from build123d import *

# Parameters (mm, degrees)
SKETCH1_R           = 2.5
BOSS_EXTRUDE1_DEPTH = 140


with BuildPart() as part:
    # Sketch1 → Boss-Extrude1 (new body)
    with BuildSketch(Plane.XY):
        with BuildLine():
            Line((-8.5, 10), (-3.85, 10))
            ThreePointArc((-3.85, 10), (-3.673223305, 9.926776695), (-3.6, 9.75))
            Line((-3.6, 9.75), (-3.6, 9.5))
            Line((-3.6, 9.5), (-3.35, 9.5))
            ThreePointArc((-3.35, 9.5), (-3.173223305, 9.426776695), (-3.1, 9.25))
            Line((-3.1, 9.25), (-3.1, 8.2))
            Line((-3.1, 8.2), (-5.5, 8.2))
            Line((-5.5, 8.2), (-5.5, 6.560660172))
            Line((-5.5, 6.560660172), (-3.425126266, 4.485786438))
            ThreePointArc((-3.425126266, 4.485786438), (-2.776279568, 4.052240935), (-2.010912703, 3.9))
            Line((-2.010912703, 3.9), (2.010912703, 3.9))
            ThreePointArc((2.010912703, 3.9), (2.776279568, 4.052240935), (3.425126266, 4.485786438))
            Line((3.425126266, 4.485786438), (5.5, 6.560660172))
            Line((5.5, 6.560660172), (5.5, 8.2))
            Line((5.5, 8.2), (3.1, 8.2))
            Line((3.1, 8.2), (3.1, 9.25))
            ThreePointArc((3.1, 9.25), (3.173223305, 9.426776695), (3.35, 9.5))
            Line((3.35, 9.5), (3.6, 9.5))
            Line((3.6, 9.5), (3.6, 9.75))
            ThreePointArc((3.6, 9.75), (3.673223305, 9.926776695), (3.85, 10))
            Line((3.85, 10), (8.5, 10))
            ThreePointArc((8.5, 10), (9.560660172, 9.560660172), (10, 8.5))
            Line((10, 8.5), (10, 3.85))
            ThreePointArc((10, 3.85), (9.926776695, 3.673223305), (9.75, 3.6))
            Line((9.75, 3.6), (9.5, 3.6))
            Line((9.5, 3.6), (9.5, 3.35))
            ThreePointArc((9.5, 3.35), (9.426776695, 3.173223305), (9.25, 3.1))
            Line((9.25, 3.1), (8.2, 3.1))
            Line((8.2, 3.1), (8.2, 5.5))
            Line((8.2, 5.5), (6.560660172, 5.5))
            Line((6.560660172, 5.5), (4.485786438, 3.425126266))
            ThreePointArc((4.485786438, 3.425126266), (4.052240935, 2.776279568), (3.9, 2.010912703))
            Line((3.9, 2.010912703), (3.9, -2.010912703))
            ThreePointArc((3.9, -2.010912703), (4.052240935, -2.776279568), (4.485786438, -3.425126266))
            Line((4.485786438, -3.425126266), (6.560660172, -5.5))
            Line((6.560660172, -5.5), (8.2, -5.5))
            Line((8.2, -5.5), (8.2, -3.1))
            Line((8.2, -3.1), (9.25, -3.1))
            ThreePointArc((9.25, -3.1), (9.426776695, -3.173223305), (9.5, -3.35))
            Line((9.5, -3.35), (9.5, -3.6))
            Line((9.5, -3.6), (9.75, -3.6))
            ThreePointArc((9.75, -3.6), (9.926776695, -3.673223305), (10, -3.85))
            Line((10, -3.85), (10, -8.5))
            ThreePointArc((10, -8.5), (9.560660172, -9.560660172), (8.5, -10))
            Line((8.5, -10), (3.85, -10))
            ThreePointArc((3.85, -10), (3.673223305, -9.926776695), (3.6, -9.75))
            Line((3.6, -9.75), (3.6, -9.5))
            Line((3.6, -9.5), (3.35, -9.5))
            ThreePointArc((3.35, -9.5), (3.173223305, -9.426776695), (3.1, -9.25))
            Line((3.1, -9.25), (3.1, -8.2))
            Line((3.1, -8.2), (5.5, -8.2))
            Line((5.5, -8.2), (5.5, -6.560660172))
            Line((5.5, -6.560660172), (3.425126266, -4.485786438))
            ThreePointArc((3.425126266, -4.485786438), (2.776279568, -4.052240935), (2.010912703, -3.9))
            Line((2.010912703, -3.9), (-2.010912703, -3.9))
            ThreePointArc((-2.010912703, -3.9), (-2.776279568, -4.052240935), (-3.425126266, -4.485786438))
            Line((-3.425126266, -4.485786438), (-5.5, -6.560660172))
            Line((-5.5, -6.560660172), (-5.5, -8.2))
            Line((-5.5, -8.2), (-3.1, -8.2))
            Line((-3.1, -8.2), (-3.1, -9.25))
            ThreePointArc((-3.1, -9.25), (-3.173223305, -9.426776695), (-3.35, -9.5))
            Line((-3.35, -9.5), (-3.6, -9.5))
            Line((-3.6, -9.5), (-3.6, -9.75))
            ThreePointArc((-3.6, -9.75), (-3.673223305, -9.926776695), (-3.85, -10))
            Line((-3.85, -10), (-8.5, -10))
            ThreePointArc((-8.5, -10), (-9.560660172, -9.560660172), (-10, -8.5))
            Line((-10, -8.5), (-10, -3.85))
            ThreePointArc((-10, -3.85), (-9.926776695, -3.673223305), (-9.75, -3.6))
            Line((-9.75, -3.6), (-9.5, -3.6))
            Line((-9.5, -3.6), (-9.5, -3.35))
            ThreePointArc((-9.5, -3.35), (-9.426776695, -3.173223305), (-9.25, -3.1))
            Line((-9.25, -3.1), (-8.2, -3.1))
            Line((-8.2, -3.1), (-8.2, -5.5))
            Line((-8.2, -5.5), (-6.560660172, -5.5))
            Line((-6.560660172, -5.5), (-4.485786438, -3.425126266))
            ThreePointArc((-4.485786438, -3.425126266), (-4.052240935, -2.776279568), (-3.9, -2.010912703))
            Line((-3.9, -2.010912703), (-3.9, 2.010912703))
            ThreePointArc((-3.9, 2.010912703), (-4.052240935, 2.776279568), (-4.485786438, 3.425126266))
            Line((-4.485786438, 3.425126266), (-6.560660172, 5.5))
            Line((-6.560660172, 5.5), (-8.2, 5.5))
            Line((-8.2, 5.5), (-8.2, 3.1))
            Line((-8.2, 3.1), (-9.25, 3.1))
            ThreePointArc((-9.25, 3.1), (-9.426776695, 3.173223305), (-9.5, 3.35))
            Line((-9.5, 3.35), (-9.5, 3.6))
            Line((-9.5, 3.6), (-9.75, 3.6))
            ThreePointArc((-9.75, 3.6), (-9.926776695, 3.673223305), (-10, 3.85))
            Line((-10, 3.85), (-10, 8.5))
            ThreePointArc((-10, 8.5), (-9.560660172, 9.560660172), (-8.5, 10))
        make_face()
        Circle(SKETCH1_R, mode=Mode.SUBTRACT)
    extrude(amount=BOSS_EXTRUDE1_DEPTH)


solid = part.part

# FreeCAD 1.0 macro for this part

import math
import FreeCAD as App
import Part
import Sketcher
from FreeCAD import Vector
Q = App.Units.Quantity

doc = App.newDocument("Part")
body = doc.addObject("PartDesign::Body", "Body")

sketch1 = body.newObject("Sketcher::SketchObject", "Sketch")
sketch1.AttachmentSupport = (doc.getObject("XY_Plane"), [""])
sketch1.MapMode = "FlatFace"
sketch1.addGeometry([
    Part.LineSegment(Vector(-3.85, 10, 0), Vector(-8.5, 10, 0)),
    Part.ArcOfCircle(Part.Circle(Vector(-8.5, 8.5, 0), Vector(0, 0, 1), 1.5), math.radians(90), math.radians(180)),
    Part.LineSegment(Vector(-10, 8.5, 0), Vector(-10, 3.85, 0)),
    Part.ArcOfCircle(Part.Circle(Vector(-9.75, 3.85, 0), Vector(0, 0, 1), 0.25), math.radians(-180), math.radians(-90)),
    Part.LineSegment(Vector(-9.75, 3.6, 0), Vector(-9.5, 3.6, 0)),
    Part.LineSegment(Vector(-9.5, 3.6, 0), Vector(-9.5, 3.35, 0)),
    Part.ArcOfCircle(Part.Circle(Vector(-9.25, 3.35, 0), Vector(0, 0, 1), 0.25), math.radians(-180), math.radians(-90)),
    Part.LineSegment(Vector(-9.25, 3.1, 0), Vector(-8.2, 3.1, 0)),
    Part.LineSegment(Vector(-8.2, 3.1, 0), Vector(-8.2, 5.5, 0)),
    Part.LineSegment(Vector(-8.2, 5.5, 0), Vector(-6.56, 5.5, 0)),
    Part.LineSegment(Vector(-6.56, 5.5, 0), Vector(-4.49, 3.43, 0)),
    Part.ArcOfCircle(Part.Circle(Vector(-5.9, 2.01, 0), Vector(0, 0, 1), 2), math.radians(0), math.radians(45)),
    Part.LineSegment(Vector(-3.9, 2.01, 0), Vector(-3.9, -2.01, 0)),
    Part.ArcOfCircle(Part.Circle(Vector(-5.9, -2.01, 0), Vector(0, 0, 1), 2), math.radians(-45), math.radians(0)),
    Part.LineSegment(Vector(-4.49, -3.43, 0), Vector(-6.56, -5.5, 0)),
    Part.LineSegment(Vector(-6.56, -5.5, 0), Vector(-8.2, -5.5, 0)),
    Part.LineSegment(Vector(-8.2, -5.5, 0), Vector(-8.2, -3.1, 0)),
    Part.LineSegment(Vector(-8.2, -3.1, 0), Vector(-9.25, -3.1, 0)),
    Part.ArcOfCircle(Part.Circle(Vector(-9.25, -3.35, 0), Vector(0, 0, 1), 0.25), math.radians(90), math.radians(180)),
    Part.LineSegment(Vector(-9.5, -3.35, 0), Vector(-9.5, -3.6, 0)),
    Part.LineSegment(Vector(-9.5, -3.6, 0), Vector(-9.75, -3.6, 0)),
    Part.ArcOfCircle(Part.Circle(Vector(-9.75, -3.85, 0), Vector(0, 0, 1), 0.25), math.radians(90), math.radians(180)),
    Part.LineSegment(Vector(-10, -3.85, 0), Vector(-10, -8.5, 0)),
    Part.ArcOfCircle(Part.Circle(Vector(-8.5, -8.5, 0), Vector(0, 0, 1), 1.5), math.radians(180), math.radians(270)),
    Part.LineSegment(Vector(-8.5, -10, 0), Vector(-3.85, -10, 0)),
    Part.ArcOfCircle(Part.Circle(Vector(-3.85, -9.75, 0), Vector(0, 0, 1), 0.25), math.radians(-90), math.radians(0)),
    Part.LineSegment(Vector(-3.6, -9.75, 0), Vector(-3.6, -9.5, 0)),
    Part.LineSegment(Vector(-3.6, -9.5, 0), Vector(-3.35, -9.5, 0)),
    Part.ArcOfCircle(Part.Circle(Vector(-3.35, -9.25, 0), Vector(0, 0, 1), 0.25), math.radians(-90), math.radians(0)),
    Part.LineSegment(Vector(-3.1, -9.25, 0), Vector(-3.1, -8.2, 0)),
    Part.LineSegment(Vector(-3.1, -8.2, 0), Vector(-5.5, -8.2, 0)),
    Part.LineSegment(Vector(-5.5, -8.2, 0), Vector(-5.5, -6.56, 0)),
    Part.LineSegment(Vector(-5.5, -6.56, 0), Vector(-3.43, -4.49, 0)),
    Part.ArcOfCircle(Part.Circle(Vector(-2.01, -5.9, 0), Vector(0, 0, 1), 2), math.radians(90), math.radians(135)),
    Part.LineSegment(Vector(-2.01, -3.9, 0), Vector(2.01, -3.9, 0)),
    Part.ArcOfCircle(Part.Circle(Vector(2.01, -5.9, 0), Vector(0, 0, 1), 2), math.radians(45), math.radians(90)),
    Part.LineSegment(Vector(3.43, -4.49, 0), Vector(5.5, -6.56, 0)),
    Part.LineSegment(Vector(5.5, -6.56, 0), Vector(5.5, -8.2, 0)),
    Part.LineSegment(Vector(5.5, -8.2, 0), Vector(3.1, -8.2, 0)),
    Part.LineSegment(Vector(3.1, -8.2, 0), Vector(3.1, -9.25, 0)),
    Part.ArcOfCircle(Part.Circle(Vector(3.35, -9.25, 0), Vector(0, 0, 1), 0.25), math.radians(-180), math.radians(-90)),
    Part.LineSegment(Vector(3.35, -9.5, 0), Vector(3.6, -9.5, 0)),
    Part.LineSegment(Vector(3.6, -9.5, 0), Vector(3.6, -9.75, 0)),
    Part.ArcOfCircle(Part.Circle(Vector(3.85, -9.75, 0), Vector(0, 0, 1), 0.25), math.radians(-180), math.radians(-90)),
    Part.LineSegment(Vector(3.85, -10, 0), Vector(8.5, -10, 0)),
    Part.ArcOfCircle(Part.Circle(Vector(8.5, -8.5, 0), Vector(0, 0, 1), 1.5), math.radians(-90), math.radians(0)),
    Part.LineSegment(Vector(10, -8.5, 0), Vector(10, -3.85, 0)),
    Part.ArcOfCircle(Part.Circle(Vector(9.75, -3.85, 0), Vector(0, 0, 1), 0.25), math.radians(0), math.radians(90)),
    Part.LineSegment(Vector(9.75, -3.6, 0), Vector(9.5, -3.6, 0)),
    Part.LineSegment(Vector(9.5, -3.6, 0), Vector(9.5, -3.35, 0)),
    Part.ArcOfCircle(Part.Circle(Vector(9.25, -3.35, 0), Vector(0, 0, 1), 0.25), math.radians(0), math.radians(90)),
    Part.LineSegment(Vector(9.25, -3.1, 0), Vector(8.2, -3.1, 0)),
    Part.LineSegment(Vector(8.2, -3.1, 0), Vector(8.2, -5.5, 0)),
    Part.LineSegment(Vector(8.2, -5.5, 0), Vector(6.56, -5.5, 0)),
    Part.LineSegment(Vector(6.56, -5.5, 0), Vector(4.49, -3.43, 0)),
    Part.ArcOfCircle(Part.Circle(Vector(5.9, -2.01, 0), Vector(0, 0, 1), 2), math.radians(180), math.radians(225)),
    Part.LineSegment(Vector(3.9, -2.01, 0), Vector(3.9, 2.01, 0)),
    Part.ArcOfCircle(Part.Circle(Vector(5.9, 2.01, 0), Vector(0, 0, 1), 2), math.radians(135), math.radians(180)),
    Part.LineSegment(Vector(4.49, 3.43, 0), Vector(6.56, 5.5, 0)),
    Part.LineSegment(Vector(6.56, 5.5, 0), Vector(8.2, 5.5, 0)),
    Part.LineSegment(Vector(8.2, 5.5, 0), Vector(8.2, 3.1, 0)),
    Part.LineSegment(Vector(8.2, 3.1, 0), Vector(9.25, 3.1, 0)),
    Part.ArcOfCircle(Part.Circle(Vector(9.25, 3.35, 0), Vector(0, 0, 1), 0.25), math.radians(-90), math.radians(0)),
    Part.LineSegment(Vector(9.5, 3.35, 0), Vector(9.5, 3.6, 0)),
    Part.LineSegment(Vector(9.5, 3.6, 0), Vector(9.75, 3.6, 0)),
    Part.ArcOfCircle(Part.Circle(Vector(9.75, 3.85, 0), Vector(0, 0, 1), 0.25), math.radians(-90), math.radians(0)),
    Part.LineSegment(Vector(10, 3.85, 0), Vector(10, 8.5, 0)),
    Part.ArcOfCircle(Part.Circle(Vector(8.5, 8.5, 0), Vector(0, 0, 1), 1.5), math.radians(0), math.radians(90)),
    Part.LineSegment(Vector(8.5, 10, 0), Vector(3.85, 10, 0)),
    Part.ArcOfCircle(Part.Circle(Vector(3.85, 9.75, 0), Vector(0, 0, 1), 0.25), math.radians(90), math.radians(180)),
    Part.LineSegment(Vector(3.6, 9.75, 0), Vector(3.6, 9.5, 0)),
    Part.LineSegment(Vector(3.6, 9.5, 0), Vector(3.35, 9.5, 0)),
    Part.ArcOfCircle(Part.Circle(Vector(3.35, 9.25, 0), Vector(0, 0, 1), 0.25), math.radians(90), math.radians(180)),
    Part.LineSegment(Vector(3.1, 9.25, 0), Vector(3.1, 8.2, 0)),
    Part.LineSegment(Vector(3.1, 8.2, 0), Vector(5.5, 8.2, 0)),
    Part.LineSegment(Vector(5.5, 8.2, 0), Vector(5.5, 6.56, 0)),
    Part.LineSegment(Vector(5.5, 6.56, 0), Vector(3.43, 4.49, 0)),
    Part.ArcOfCircle(Part.Circle(Vector(2.01, 5.9, 0), Vector(0, 0, 1), 2), math.radians(-90), math.radians(-45)),
    Part.LineSegment(Vector(2.01, 3.9, 0), Vector(-2.01, 3.9, 0)),
    Part.ArcOfCircle(Part.Circle(Vector(-2.01, 5.9, 0), Vector(0, 0, 1), 2), math.radians(-135), math.radians(-90)),
    Part.LineSegment(Vector(-3.43, 4.49, 0), Vector(-5.5, 6.56, 0)),
    Part.LineSegment(Vector(-5.5, 6.56, 0), Vector(-5.5, 8.2, 0)),
    Part.LineSegment(Vector(-5.5, 8.2, 0), Vector(-3.1, 8.2, 0)),
    Part.LineSegment(Vector(-3.1, 8.2, 0), Vector(-3.1, 9.25, 0)),
    Part.ArcOfCircle(Part.Circle(Vector(-3.35, 9.25, 0), Vector(0, 0, 1), 0.25), math.radians(0), math.radians(90)),
    Part.LineSegment(Vector(-3.35, 9.5, 0), Vector(-3.6, 9.5, 0)),
    Part.LineSegment(Vector(-3.6, 9.5, 0), Vector(-3.6, 9.75, 0)),
    Part.ArcOfCircle(Part.Circle(Vector(-3.85, 9.75, 0), Vector(0, 0, 1), 0.25), math.radians(0), math.radians(90)),
    Part.Circle(Vector(0, 0, 0), Vector(0, 0, 1), 2.5),
], False)
sketch1.addConstraint([
    Sketcher.Constraint("Tangent", 0, 2, 1, 1),
    Sketcher.Constraint("Tangent", 1, 2, 2, 1),
    Sketcher.Constraint("Tangent", 2, 2, 3, 1),
    Sketcher.Constraint("Tangent", 3, 2, 4, 1),
    Sketcher.Constraint("Coincident", 4, 2, 5, 1),
    Sketcher.Constraint("Tangent", 5, 2, 6, 1),
    Sketcher.Constraint("Tangent", 6, 2, 7, 1),
    Sketcher.Constraint("Coincident", 7, 2, 8, 1),
    Sketcher.Constraint("Coincident", 8, 2, 9, 1),
    Sketcher.Constraint("Coincident", 9, 2, 10, 1),
    Sketcher.Constraint("Tangent", 10, 2, 11, 2),
    Sketcher.Constraint("Tangent", 11, 1, 12, 1),
    Sketcher.Constraint("Tangent", 12, 2, 13, 2),
    Sketcher.Constraint("Tangent", 13, 1, 14, 1),
    Sketcher.Constraint("Coincident", 14, 2, 15, 1),
    Sketcher.Constraint("Coincident", 15, 2, 16, 1),
    Sketcher.Constraint("Coincident", 16, 2, 17, 1),
    Sketcher.Constraint("Tangent", 17, 2, 18, 1),
    Sketcher.Constraint("Tangent", 18, 2, 19, 1),
    Sketcher.Constraint("Coincident", 19, 2, 20, 1),
    Sketcher.Constraint("Tangent", 20, 2, 21, 1),
    Sketcher.Constraint("Tangent", 21, 2, 22, 1),
    Sketcher.Constraint("Tangent", 22, 2, 23, 1),
    Sketcher.Constraint("Tangent", 23, 2, 24, 1),
    Sketcher.Constraint("Tangent", 24, 2, 25, 1),
    Sketcher.Constraint("Tangent", 25, 2, 26, 1),
    Sketcher.Constraint("Coincident", 26, 2, 27, 1),
    Sketcher.Constraint("Tangent", 27, 2, 28, 1),
    Sketcher.Constraint("Tangent", 28, 2, 29, 1),
    Sketcher.Constraint("Coincident", 29, 2, 30, 1),
    Sketcher.Constraint("Coincident", 30, 2, 31, 1),
    Sketcher.Constraint("Coincident", 31, 2, 32, 1),
    Sketcher.Constraint("Tangent", 32, 2, 33, 2),
    Sketcher.Constraint("Tangent", 33, 1, 34, 1),
    Sketcher.Constraint("Tangent", 34, 2, 35, 2),
    Sketcher.Constraint("Tangent", 35, 1, 36, 1),
    Sketcher.Constraint("Coincident", 36, 2, 37, 1),
    Sketcher.Constraint("Coincident", 37, 2, 38, 1),
    Sketcher.Constraint("Coincident", 38, 2, 39, 1),
    Sketcher.Constraint("Tangent", 39, 2, 40, 1),
    Sketcher.Constraint("Tangent", 40, 2, 41, 1),
    Sketcher.Constraint("Coincident", 41, 2, 42, 1),
    Sketcher.Constraint("Tangent", 42, 2, 43, 1),
    Sketcher.Constraint("Tangent", 43, 2, 44, 1),
    Sketcher.Constraint("Tangent", 44, 2, 45, 1),
    Sketcher.Constraint("Tangent", 45, 2, 46, 1),
    Sketcher.Constraint("Tangent", 46, 2, 47, 1),
    Sketcher.Constraint("Tangent", 47, 2, 48, 1),
    Sketcher.Constraint("Coincident", 48, 2, 49, 1),
    Sketcher.Constraint("Tangent", 49, 2, 50, 1),
    Sketcher.Constraint("Tangent", 50, 2, 51, 1),
    Sketcher.Constraint("Coincident", 51, 2, 52, 1),
    Sketcher.Constraint("Coincident", 52, 2, 53, 1),
    Sketcher.Constraint("Coincident", 53, 2, 54, 1),
    Sketcher.Constraint("Tangent", 54, 2, 55, 2),
    Sketcher.Constraint("Tangent", 55, 1, 56, 1),
    Sketcher.Constraint("Tangent", 56, 2, 57, 2),
    Sketcher.Constraint("Tangent", 57, 1, 58, 1),
    Sketcher.Constraint("Coincident", 58, 2, 59, 1),
    Sketcher.Constraint("Coincident", 59, 2, 60, 1),
    Sketcher.Constraint("Coincident", 60, 2, 61, 1),
    Sketcher.Constraint("Tangent", 61, 2, 62, 1),
    Sketcher.Constraint("Tangent", 62, 2, 63, 1),
    Sketcher.Constraint("Coincident", 63, 2, 64, 1),
    Sketcher.Constraint("Tangent", 64, 2, 65, 1),
    Sketcher.Constraint("Tangent", 65, 2, 66, 1),
    Sketcher.Constraint("Tangent", 66, 2, 67, 1),
    Sketcher.Constraint("Tangent", 67, 2, 68, 1),
    Sketcher.Constraint("Tangent", 68, 2, 69, 1),
    Sketcher.Constraint("Tangent", 69, 2, 70, 1),
    Sketcher.Constraint("Coincident", 70, 2, 71, 1),
    Sketcher.Constraint("Tangent", 71, 2, 72, 1),
    Sketcher.Constraint("Tangent", 72, 2, 73, 1),
    Sketcher.Constraint("Coincident", 73, 2, 74, 1),
    Sketcher.Constraint("Coincident", 74, 2, 75, 1),
    Sketcher.Constraint("Coincident", 75, 2, 76, 1),
    Sketcher.Constraint("Tangent", 76, 2, 77, 2),
    Sketcher.Constraint("Tangent", 77, 1, 78, 1),
    Sketcher.Constraint("Tangent", 78, 2, 79, 2),
    Sketcher.Constraint("Tangent", 79, 1, 80, 1),
    Sketcher.Constraint("Coincident", 80, 2, 81, 1),
    Sketcher.Constraint("Coincident", 81, 2, 82, 1),
    Sketcher.Constraint("Coincident", 82, 2, 83, 1),
    Sketcher.Constraint("Tangent", 83, 2, 84, 1),
    Sketcher.Constraint("Tangent", 84, 2, 85, 1),
    Sketcher.Constraint("Coincident", 85, 2, 86, 1),
    Sketcher.Constraint("Tangent", 86, 2, 87, 1),
    Sketcher.Constraint("Tangent", 87, 2, 0, 1),
    Sketcher.Constraint("Horizontal", 0),
    Sketcher.Constraint("Vertical", 2),
    Sketcher.Constraint("Horizontal", 4),
    Sketcher.Constraint("Vertical", 5),
    Sketcher.Constraint("Horizontal", 7),
    Sketcher.Constraint("Vertical", 8),
    Sketcher.Constraint("Horizontal", 9),
    Sketcher.Constraint("Vertical", 12),
    Sketcher.Constraint("Horizontal", 15),
    Sketcher.Constraint("Vertical", 16),
    Sketcher.Constraint("Horizontal", 17),
    Sketcher.Constraint("Vertical", 19),
    Sketcher.Constraint("Horizontal", 20),
    Sketcher.Constraint("Vertical", 22),
    Sketcher.Constraint("Horizontal", 24),
    Sketcher.Constraint("Vertical", 26),
    Sketcher.Constraint("Horizontal", 27),
    Sketcher.Constraint("Vertical", 29),
    Sketcher.Constraint("Horizontal", 30),
    Sketcher.Constraint("Vertical", 31),
    Sketcher.Constraint("Horizontal", 34),
    Sketcher.Constraint("Vertical", 37),
    Sketcher.Constraint("Horizontal", 38),
    Sketcher.Constraint("Vertical", 39),
    Sketcher.Constraint("Horizontal", 41),
    Sketcher.Constraint("Vertical", 42),
    Sketcher.Constraint("Horizontal", 44),
    Sketcher.Constraint("Vertical", 46),
    Sketcher.Constraint("Horizontal", 48),
    Sketcher.Constraint("Vertical", 49),
    Sketcher.Constraint("Horizontal", 51),
    Sketcher.Constraint("Vertical", 52),
    Sketcher.Constraint("Horizontal", 53),
    Sketcher.Constraint("Vertical", 56),
    Sketcher.Constraint("Horizontal", 59),
    Sketcher.Constraint("Vertical", 60),
    Sketcher.Constraint("Horizontal", 61),
    Sketcher.Constraint("Vertical", 63),
    Sketcher.Constraint("Horizontal", 64),
    Sketcher.Constraint("Vertical", 66),
    Sketcher.Constraint("Horizontal", 68),
    Sketcher.Constraint("Vertical", 70),
    Sketcher.Constraint("Horizontal", 71),
    Sketcher.Constraint("Vertical", 73),
    Sketcher.Constraint("Horizontal", 74),
    Sketcher.Constraint("Vertical", 75),
    Sketcher.Constraint("Horizontal", 78),
    Sketcher.Constraint("Vertical", 81),
    Sketcher.Constraint("Horizontal", 82),
    Sketcher.Constraint("Vertical", 83),
    Sketcher.Constraint("Horizontal", 85),
    Sketcher.Constraint("Vertical", 86),
    Sketcher.Constraint("Coincident", 88, 3, -1, 1),
    Sketcher.Constraint("Equal", 3, 6),
    Sketcher.Constraint("Equal", 11, 13),
    Sketcher.Constraint("Equal", 6, 18),
    Sketcher.Constraint("Equal", 18, 21),
    Sketcher.Constraint("Equal", 1, 23),
    Sketcher.Constraint("Equal", 21, 25),
    Sketcher.Constraint("Equal", 25, 28),
    Sketcher.Constraint("Equal", 13, 33),
    Sketcher.Constraint("Equal", 33, 35),
    Sketcher.Constraint("Equal", 28, 40),
    Sketcher.Constraint("Equal", 40, 43),
    Sketcher.Constraint("Equal", 23, 45),
    Sketcher.Constraint("Equal", 43, 47),
    Sketcher.Constraint("Equal", 47, 50),
    Sketcher.Constraint("Equal", 35, 55),
    Sketcher.Constraint("Equal", 55, 57),
    Sketcher.Constraint("Equal", 50, 62),
    Sketcher.Constraint("Equal", 62, 65),
    Sketcher.Constraint("Equal", 45, 67),
    Sketcher.Constraint("Equal", 65, 69),
    Sketcher.Constraint("Equal", 69, 72),
    Sketcher.Constraint("Equal", 57, 77),
    Sketcher.Constraint("Equal", 77, 79),
    Sketcher.Constraint("Equal", 72, 84),
    Sketcher.Constraint("Equal", 84, 87),
    Sketcher.Constraint("Symmetric", 1, 3, 45, 3, -1, 1),
    Sketcher.Constraint("Symmetric", 6, 3, 50, 3, -1, 1),
    Sketcher.Constraint("Symmetric", 11, 3, 55, 3, -1, 1),
    Sketcher.Constraint("Symmetric", 18, 3, 62, 3, -1, 1),
    Sketcher.Constraint("Symmetric", 21, 3, 65, 3, -1, 1),
    Sketcher.Constraint("Symmetric", 25, 3, 69, 3, -1, 1),
    Sketcher.Constraint("Symmetric", 28, 3, 72, 3, -1, 1),
    Sketcher.Constraint("Symmetric", 33, 3, 77, 3, -1, 1),
    Sketcher.Constraint("Symmetric", 40, 3, 84, 3, -1, 1),
    Sketcher.Constraint("Symmetric", 8, 2, 52, 2, -1, 1),
    Sketcher.Constraint("Symmetric", 13, 1, 57, 1, -1, 1),
    Sketcher.Constraint("Symmetric", 15, 2, 59, 2, -1, 1),
    Sketcher.Constraint("Symmetric", 30, 2, 74, 2, -1, 1),
    Sketcher.Constraint("Symmetric", 35, 1, 79, 1, -1, 1),
    Sketcher.Constraint("Symmetric", 37, 2, 81, 2, -1, 1),
    Sketcher.Constraint("Symmetric", 28, 3, 40, 3, -2),
    Sketcher.Constraint("Symmetric", 25, 3, 43, 3, -2),
    Sketcher.Constraint("Symmetric", 21, 3, 47, 3, -2),
    Sketcher.Constraint("Symmetric", 18, 3, 50, 3, -2),
    Sketcher.Constraint("Symmetric", 32, 2, 35, 1, -2),
    Sketcher.Constraint("Symmetric", 30, 2, 37, 2, -2),
    Sketcher.Constraint("Symmetric", 15, 2, 52, 2, -2),
    Sketcher.Constraint("Symmetric", 13, 1, 54, 2, -2),
    Sketcher.Constraint("Perpendicular", 10, 14),
    Sketcher.Constraint("Parallel", 14, 32),
    Sketcher.Constraint("Perpendicular", 32, 36),
    Sketcher.Constraint("Parallel", 58, 76),
    Sketcher.Constraint("Horizontal", 3, 3, 65, 3),
    Sketcher.Constraint("Vertical", 25, 3, 87, 3),
    Sketcher.Constraint("Equal", 20, 27),
    Sketcher.Constraint("Equal", 68, 2),
    Sketcher.Constraint("Equal", 85, 5),
    Sketcher.Constraint("Equal", 82, 8),
    Sketcher.Constraint("Equal", 78, 12),
    Sketcher.Constraint("Equal", 19, 26),
    Sketcher.Constraint("Equal", 61, 29),
    Sketcher.Constraint("Equal", 59, 31),
    Sketcher.Constraint("Equal", 14, 32),
    Sketcher.Constraint("Diameter", 88, Q("5 mm")),
    Sketcher.Constraint("Radius", 11, Q("2 mm")),
    Sketcher.Constraint("Radius", 1, Q("1.5 mm")),
    Sketcher.Constraint("Radius", 3, Q("0.25 mm")),
    Sketcher.Constraint("DistanceX", 30, 2, 30, 1, Q("2.4 mm")),
    Sketcher.Constraint("DistanceY", -1, 1, 0, 2, Q("10 mm")),
    Sketcher.Constraint("DistanceX", 0, 2, 0, 1, Q("4.65 mm")),
    Sketcher.Constraint("DistanceX", 4, 1, 4, 2, Q("0.25 mm")),
    Sketcher.Constraint("DistanceX", 7, 1, 7, 2, Q("1.05 mm")),
    Sketcher.Constraint("DistanceX", 11, 3, -1, 1, Q("5.9 mm")),
    Sketcher.Constraint("DistanceX", 9, 1, 9, 2, Q("1.63934 mm")),
])
pad1 = body.newObject("PartDesign::Pad", "Pad")
pad1.Profile = sketch1
pad1.Length = 140

doc.recompute()
